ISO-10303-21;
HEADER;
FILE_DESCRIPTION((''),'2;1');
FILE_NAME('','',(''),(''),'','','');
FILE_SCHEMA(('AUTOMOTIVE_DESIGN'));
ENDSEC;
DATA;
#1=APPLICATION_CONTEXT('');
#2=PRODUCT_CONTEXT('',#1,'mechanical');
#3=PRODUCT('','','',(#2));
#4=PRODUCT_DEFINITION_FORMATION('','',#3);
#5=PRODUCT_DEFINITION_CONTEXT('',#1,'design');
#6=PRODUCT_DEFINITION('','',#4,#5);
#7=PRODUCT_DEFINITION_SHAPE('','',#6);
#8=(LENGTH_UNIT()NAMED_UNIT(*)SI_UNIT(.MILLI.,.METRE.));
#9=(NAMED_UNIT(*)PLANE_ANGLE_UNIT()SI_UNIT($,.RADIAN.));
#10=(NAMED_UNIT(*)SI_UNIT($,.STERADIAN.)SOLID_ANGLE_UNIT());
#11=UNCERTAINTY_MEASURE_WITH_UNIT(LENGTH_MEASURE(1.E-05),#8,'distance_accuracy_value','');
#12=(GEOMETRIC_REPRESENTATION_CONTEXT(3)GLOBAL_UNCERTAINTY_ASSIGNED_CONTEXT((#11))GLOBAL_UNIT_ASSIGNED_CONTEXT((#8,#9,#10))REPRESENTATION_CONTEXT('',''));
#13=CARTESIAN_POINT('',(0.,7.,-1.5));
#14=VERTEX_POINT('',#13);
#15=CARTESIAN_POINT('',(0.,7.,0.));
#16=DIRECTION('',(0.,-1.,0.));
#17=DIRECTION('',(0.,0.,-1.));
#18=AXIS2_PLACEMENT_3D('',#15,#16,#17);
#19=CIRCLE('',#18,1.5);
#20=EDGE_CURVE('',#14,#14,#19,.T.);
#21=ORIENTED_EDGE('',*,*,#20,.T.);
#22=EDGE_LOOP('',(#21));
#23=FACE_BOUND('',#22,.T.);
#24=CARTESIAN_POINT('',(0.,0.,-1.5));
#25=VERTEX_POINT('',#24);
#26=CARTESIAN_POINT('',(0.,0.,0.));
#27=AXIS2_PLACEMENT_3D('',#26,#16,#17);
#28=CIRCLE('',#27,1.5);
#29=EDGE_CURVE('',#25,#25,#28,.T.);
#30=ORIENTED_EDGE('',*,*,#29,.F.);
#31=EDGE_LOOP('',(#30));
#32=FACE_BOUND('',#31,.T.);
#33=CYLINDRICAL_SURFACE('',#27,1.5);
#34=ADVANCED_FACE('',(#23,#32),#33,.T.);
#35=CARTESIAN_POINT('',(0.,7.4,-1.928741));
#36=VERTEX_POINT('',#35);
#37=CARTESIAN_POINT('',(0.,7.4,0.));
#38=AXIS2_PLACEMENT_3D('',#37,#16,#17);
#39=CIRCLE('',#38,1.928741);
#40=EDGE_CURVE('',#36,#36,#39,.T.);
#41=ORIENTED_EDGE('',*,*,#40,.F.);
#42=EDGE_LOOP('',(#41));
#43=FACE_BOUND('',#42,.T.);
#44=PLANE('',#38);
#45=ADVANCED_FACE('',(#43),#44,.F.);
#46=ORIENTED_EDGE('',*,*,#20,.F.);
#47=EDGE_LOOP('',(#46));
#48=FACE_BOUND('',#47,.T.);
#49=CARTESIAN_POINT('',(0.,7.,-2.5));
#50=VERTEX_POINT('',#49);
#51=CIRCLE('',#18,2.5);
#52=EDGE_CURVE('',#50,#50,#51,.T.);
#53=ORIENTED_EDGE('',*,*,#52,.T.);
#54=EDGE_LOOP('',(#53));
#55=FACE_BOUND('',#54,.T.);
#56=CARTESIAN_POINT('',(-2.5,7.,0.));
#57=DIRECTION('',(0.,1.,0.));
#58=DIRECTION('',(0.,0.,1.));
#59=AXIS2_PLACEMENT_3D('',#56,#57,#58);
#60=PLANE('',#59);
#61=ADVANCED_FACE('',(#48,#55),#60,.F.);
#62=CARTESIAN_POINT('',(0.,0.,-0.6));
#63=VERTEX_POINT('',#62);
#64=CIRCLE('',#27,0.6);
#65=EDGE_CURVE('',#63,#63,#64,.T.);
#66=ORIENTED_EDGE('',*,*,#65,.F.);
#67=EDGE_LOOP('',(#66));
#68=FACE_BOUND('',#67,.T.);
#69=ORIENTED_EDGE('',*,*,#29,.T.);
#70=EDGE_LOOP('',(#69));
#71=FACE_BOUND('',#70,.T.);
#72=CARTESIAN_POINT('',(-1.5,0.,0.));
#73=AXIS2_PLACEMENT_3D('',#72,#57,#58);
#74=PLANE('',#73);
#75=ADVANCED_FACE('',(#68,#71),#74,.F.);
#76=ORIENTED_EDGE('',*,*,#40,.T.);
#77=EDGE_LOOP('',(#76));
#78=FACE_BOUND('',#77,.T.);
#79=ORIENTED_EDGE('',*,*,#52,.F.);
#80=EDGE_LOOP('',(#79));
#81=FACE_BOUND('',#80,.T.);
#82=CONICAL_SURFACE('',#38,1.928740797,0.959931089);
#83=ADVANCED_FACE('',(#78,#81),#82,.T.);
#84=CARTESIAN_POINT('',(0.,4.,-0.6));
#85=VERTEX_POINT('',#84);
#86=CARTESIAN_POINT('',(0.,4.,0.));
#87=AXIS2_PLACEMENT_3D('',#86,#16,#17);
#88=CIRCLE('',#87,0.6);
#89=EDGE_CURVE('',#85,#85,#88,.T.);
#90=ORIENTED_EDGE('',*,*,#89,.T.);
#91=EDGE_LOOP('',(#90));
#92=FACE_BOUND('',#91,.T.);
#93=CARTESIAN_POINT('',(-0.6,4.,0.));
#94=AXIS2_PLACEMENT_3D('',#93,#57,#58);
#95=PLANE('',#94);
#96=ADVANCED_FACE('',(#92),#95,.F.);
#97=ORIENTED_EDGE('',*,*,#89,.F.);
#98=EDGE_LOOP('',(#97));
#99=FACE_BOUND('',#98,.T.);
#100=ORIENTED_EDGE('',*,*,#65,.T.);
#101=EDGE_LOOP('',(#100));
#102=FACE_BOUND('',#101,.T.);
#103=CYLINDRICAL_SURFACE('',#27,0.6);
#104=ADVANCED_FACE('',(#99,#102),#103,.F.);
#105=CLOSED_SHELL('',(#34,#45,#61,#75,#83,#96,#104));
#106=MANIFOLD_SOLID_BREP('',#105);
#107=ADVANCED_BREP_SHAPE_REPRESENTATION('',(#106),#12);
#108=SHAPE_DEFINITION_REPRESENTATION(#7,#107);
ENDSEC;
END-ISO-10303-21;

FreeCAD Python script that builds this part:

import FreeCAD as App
import Part
import Sketcher

V = App.Vector
Q = App.Units.Quantity

doc = App.newDocument("Part")
params = doc.addObject("Spreadsheet::Sheet", "Params")
for row, (alias, value) in enumerate([
    ("sketch1_width", "1 mm"),
    ("sketch1_height", "7 mm"),
    ("sketch1_height2", "4 mm"),
    ("sketch1_width2", "0.9 mm"),
    ("sketch1_width3", "0.6 mm"),
    ("revolution_angle", "360 deg"),
], start=1):
    params.set(f"A{row}", alias)
    params.set(f"B{row}", "=" + value)
    params.setAlias(f"B{row}", alias)

body = doc.addObject("PartDesign::Body", "Body")

# Sketch on XY plane
sketch1 = body.newObject("Sketcher::SketchObject", "Sketch")
sketch1.AttachmentSupport = (doc.getObject("XY_Plane"), [""])
sketch1.MapMode = "FlatFace"
sketch1.addGeometry([
    Part.LineSegment(V(0, 7.4, 0), V(-1.928741, 7.4, 0)),  # 0
    Part.LineSegment(V(-1.928741, 7.4, 0), V(-2.5, 7, 0)),  # 1
    Part.LineSegment(V(-2.5, 7, 0), V(-1.5, 7, 0)),  # 2
    Part.LineSegment(V(-1.5, 7, 0), V(-1.5, 0, 0)),  # 3
    Part.LineSegment(V(-1.5, 0, 0), V(-0.6, 0, 0)),  # 4
    Part.LineSegment(V(-0.6, 0, 0), V(-0.6, 4, 0)),  # 5
    Part.LineSegment(V(-0.6, 4, 0), V(0, 4, 0)),  # 6
    Part.LineSegment(V(0, 4, 0), V(0, 7.4, 0)),  # 7
], False)
sketch1.addConstraint([
    Sketcher.Constraint("Coincident", 0, 2, 1, 1),
    Sketcher.Constraint("Coincident", 1, 2, 2, 1),
    Sketcher.Constraint("Coincident", 2, 2, 3, 1),
    Sketcher.Constraint("Coincident", 3, 2, 4, 1),
    Sketcher.Constraint("Coincident", 4, 2, 5, 1),
    Sketcher.Constraint("Coincident", 5, 2, 6, 1),
    Sketcher.Constraint("Coincident", 6, 2, 7, 1),
    Sketcher.Constraint("Coincident", 7, 2, 0, 1),
    Sketcher.Constraint("Horizontal", 0),
    Sketcher.Constraint("Horizontal", 2),
    Sketcher.Constraint("Vertical", 3),
    Sketcher.Constraint("Horizontal", 4),
    Sketcher.Constraint("Vertical", 5),
    Sketcher.Constraint("Horizontal", 6),
    Sketcher.Constraint("Vertical", 7),
    Sketcher.Constraint("PointOnObject", 3, 2, -1),
    Sketcher.Constraint("PointOnObject", 6, 2, -2),
    Sketcher.Constraint("DistanceX", 2, 1, 2, 2, Q("1 mm")),
    Sketcher.Constraint("DistanceY", 3, 2, 3, 1, Q("7 mm")),
    Sketcher.Constraint("DistanceY", 5, 1, 5, 2, Q("4 mm")),
    Sketcher.Constraint("Angle", 1, Q("-145 deg")),
    Sketcher.Constraint("DistanceX", 4, 1, 4, 2, Q("0.9 mm")),
    Sketcher.Constraint("DistanceX", 6, 1, 6, 2, Q("0.6 mm")),
    Sketcher.Constraint("DistanceY", 7, 1, 7, 2, Q("3.4 mm")),
])
sketch1.setExpression("Constraints[17]", "Params.sketch1_width")
sketch1.setExpression("Constraints[18]", "Params.sketch1_height")
sketch1.setExpression("Constraints[19]", "Params.sketch1_height2")
sketch1.setExpression("Constraints[21]", "Params.sketch1_width2")
sketch1.setExpression("Constraints[22]", "Params.sketch1_width3")
revolution = body.newObject("PartDesign::Revolution", "Revolution")
revolution.Profile = sketch1
revolution.ReferenceAxis = (sketch1, ["V_Axis"])
revolution.setExpression("Angle", "Params.revolution_angle")

doc.recompute()
